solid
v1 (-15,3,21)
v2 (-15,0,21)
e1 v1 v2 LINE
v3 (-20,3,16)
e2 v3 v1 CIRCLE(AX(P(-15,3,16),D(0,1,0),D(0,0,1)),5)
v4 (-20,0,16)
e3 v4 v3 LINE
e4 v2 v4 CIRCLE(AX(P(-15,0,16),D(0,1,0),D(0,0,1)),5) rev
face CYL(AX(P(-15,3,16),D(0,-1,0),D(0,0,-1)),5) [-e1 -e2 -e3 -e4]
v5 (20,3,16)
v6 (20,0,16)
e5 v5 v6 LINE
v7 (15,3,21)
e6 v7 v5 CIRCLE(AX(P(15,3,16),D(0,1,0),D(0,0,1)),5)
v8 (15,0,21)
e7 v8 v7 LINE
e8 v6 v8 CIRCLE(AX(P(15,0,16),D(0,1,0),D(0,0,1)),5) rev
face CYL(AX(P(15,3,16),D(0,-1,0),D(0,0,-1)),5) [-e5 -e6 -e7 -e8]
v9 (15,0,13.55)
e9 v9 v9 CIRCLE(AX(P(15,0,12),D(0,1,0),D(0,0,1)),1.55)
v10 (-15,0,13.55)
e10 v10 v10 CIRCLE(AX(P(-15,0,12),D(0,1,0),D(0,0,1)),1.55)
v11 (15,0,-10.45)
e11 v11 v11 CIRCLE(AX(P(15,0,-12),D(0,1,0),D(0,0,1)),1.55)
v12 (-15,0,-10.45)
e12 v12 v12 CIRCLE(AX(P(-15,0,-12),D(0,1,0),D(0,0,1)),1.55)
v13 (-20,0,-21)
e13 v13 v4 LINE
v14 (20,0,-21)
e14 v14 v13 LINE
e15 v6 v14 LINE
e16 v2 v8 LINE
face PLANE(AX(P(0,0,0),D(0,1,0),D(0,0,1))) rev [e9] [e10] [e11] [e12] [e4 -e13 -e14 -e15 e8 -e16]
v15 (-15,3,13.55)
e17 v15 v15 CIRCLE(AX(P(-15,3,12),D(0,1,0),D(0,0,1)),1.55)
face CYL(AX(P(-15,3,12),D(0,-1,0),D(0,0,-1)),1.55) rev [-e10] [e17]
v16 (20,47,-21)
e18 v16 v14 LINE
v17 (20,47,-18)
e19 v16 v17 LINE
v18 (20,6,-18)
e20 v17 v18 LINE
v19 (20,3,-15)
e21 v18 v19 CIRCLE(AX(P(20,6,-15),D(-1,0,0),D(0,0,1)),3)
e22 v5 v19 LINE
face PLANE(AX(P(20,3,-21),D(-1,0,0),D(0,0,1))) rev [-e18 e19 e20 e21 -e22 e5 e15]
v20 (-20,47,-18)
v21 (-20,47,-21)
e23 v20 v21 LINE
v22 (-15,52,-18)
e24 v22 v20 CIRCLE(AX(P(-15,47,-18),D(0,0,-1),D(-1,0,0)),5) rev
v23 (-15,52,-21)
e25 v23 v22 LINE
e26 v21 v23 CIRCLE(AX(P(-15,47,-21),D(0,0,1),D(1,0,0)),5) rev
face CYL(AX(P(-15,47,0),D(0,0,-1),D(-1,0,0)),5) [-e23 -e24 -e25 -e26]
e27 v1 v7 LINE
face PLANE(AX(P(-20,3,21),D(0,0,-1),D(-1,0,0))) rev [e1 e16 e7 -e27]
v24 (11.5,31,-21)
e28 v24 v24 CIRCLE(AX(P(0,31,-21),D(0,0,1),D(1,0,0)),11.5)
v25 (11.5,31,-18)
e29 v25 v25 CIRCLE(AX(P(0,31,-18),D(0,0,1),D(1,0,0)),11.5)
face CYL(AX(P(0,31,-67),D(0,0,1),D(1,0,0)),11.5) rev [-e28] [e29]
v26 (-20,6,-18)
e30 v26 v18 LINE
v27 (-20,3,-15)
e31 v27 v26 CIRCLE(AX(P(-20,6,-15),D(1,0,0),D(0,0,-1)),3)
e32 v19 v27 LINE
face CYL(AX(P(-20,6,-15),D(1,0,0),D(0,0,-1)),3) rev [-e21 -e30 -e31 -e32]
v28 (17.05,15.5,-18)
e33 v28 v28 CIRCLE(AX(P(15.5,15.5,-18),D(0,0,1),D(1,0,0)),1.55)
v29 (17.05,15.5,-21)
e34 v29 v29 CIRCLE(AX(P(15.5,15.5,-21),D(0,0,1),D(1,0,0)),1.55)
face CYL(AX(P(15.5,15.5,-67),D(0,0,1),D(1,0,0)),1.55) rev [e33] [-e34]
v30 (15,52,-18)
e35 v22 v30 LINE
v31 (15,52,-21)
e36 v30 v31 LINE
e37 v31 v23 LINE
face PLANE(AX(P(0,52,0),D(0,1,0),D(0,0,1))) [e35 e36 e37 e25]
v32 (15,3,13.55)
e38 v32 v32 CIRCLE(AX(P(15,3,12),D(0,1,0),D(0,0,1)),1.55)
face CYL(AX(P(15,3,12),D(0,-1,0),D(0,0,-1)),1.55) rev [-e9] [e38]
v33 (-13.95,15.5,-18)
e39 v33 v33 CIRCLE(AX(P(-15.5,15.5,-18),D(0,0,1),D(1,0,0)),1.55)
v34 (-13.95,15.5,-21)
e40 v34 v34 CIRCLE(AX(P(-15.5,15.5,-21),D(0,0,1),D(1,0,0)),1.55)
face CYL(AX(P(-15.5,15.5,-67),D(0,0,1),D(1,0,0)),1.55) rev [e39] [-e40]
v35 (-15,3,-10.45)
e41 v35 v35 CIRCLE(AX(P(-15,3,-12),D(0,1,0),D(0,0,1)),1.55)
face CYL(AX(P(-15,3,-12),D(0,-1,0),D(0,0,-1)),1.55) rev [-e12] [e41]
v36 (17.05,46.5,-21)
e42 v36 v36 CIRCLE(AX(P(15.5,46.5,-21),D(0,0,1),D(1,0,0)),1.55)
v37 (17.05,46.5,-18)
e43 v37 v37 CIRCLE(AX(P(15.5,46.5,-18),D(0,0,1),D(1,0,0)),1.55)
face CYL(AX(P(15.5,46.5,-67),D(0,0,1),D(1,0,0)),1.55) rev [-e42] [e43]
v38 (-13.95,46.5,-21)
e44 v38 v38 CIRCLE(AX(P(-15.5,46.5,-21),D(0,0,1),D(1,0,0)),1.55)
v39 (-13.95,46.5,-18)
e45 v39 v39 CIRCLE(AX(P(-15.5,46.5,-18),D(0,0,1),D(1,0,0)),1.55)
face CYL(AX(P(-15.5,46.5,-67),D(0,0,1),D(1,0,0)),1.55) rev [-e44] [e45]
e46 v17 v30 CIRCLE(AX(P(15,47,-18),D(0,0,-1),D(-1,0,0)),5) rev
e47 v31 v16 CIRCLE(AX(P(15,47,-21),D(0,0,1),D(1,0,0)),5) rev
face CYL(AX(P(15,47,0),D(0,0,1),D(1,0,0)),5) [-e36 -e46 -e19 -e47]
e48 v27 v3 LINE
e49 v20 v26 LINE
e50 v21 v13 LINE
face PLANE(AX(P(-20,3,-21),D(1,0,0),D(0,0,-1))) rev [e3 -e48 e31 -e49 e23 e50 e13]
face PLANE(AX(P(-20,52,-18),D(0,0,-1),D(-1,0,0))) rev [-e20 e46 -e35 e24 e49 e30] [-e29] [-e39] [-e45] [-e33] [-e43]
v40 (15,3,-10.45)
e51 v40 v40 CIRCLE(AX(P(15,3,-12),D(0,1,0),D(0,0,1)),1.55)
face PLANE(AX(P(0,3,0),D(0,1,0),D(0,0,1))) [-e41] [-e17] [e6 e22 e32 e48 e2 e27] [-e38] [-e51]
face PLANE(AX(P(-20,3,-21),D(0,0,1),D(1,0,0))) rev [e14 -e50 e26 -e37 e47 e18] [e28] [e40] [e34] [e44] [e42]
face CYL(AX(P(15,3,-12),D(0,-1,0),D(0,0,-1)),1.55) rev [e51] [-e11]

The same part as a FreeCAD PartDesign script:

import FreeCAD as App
import Part
import Sketcher

V = App.Vector


def edges_at(feature, points):
    """Names of the edges that pass closest to the given points."""
    edges = feature.Shape.Edges
    near = lambda p: min(range(len(edges)), key=lambda i: edges[i].distToShape(Part.Vertex(*p))[0])
    return sorted({f"Edge{near(p) + 1}" for p in points})

doc = App.newDocument("Part")
body = doc.addObject("PartDesign::Body", "Body")

# Sketch on XZ plane
sketch1 = body.newObject("Sketcher::SketchObject", "Sketch")
sketch1.AttachmentSupport = (doc.getObject("XZ_Plane"), [""])
sketch1.MapMode = "FlatFace"
sketch1.addGeometry([
    Part.LineSegment(V(-20, -21, 0), V(-20, 21, 0)),  # 0
    Part.LineSegment(V(-20, 21, 0), V(20, 21, 0)),  # 1
    Part.LineSegment(V(20, 21, 0), V(20, -21, 0)),  # 2
    Part.LineSegment(V(20, -21, 0), V(-20, -21, 0)),  # 3
    Part.Circle(V(-15, 12, 0), V(0, 0, 1), 1.55),  # 4
    Part.Circle(V(15, 12, 0), V(0, 0, 1), 1.55),  # 5
    Part.Circle(V(-15, -12, 0), V(0, 0, 1), 1.55),  # 6
    Part.Circle(V(15, -12, 0), V(0, 0, 1), 1.55),  # 7
], False)
sketch1.addConstraint([
    Sketcher.Constraint("Coincident", 0, 2, 1, 1),
    Sketcher.Constraint("Coincident", 1, 2, 2, 1),
    Sketcher.Constraint("Coincident", 2, 2, 3, 1),
    Sketcher.Constraint("Coincident", 3, 2, 0, 1),
    Sketcher.Constraint("Vertical", 0),
    Sketcher.Constraint("Horizontal", 1),
    Sketcher.Constraint("Vertical", 2),
    Sketcher.Constraint("Horizontal", 3),
    Sketcher.Constraint("Equal", 4, 5),
    Sketcher.Constraint("Equal", 5, 6),
    Sketcher.Constraint("Equal", 6, 7),
    Sketcher.Constraint("Symmetric", 5, 3, 6, 3, -1, 1),
    Sketcher.Constraint("Symmetric", 4, 3, 7, 3, -1, 1),
    Sketcher.Constraint("Symmetric", 0, 2, 2, 2, -1, 1),
    Sketcher.Constraint("Symmetric", 4, 3, 5, 3, -2),
    Sketcher.Constraint("Diameter", 4, 3.1),
    Sketcher.Constraint("DistanceX", 1, 1, 1, 2, 40.0),
    Sketcher.Constraint("DistanceY", 0, 1, 0, 2, 42.0),
    Sketcher.Constraint("DistanceX", 4, 3, -1, 1, 15.0),
    Sketcher.Constraint("DistanceY", -1, 1, 4, 3, 12.0),
])
pad1 = body.newObject("PartDesign::Pad", "Pad")
pad1.Profile = sketch1
pad1.Length = 3
pad1.Reversed = True

# Sketch on XZ plane
sketch2 = body.newObject("Sketcher::SketchObject", "Sketch001")
sketch2.AttachmentSupport = (doc.getObject("XZ_Plane"), [""])
sketch2.MapMode = "FlatFace"
sketch2.AttachmentOffset = App.Placement(V(0, 0, -3), App.Rotation())
sketch2.addGeometry([
    Part.LineSegment(V(-20, -21, 0), V(-20, -18, 0)),
    Part.LineSegment(V(-20, -18, 0), V(20, -18, 0)),
    Part.LineSegment(V(20, -18, 0), V(20, -21, 0)),
    Part.LineSegment(V(20, -21, 0), V(-20, -21, 0)),
], False)
sketch2.addConstraint([
    Sketcher.Constraint("Coincident", 0, 2, 1, 1),
    Sketcher.Constraint("Coincident", 1, 2, 2, 1),
    Sketcher.Constraint("Coincident", 2, 2, 3, 1),
    Sketcher.Constraint("Coincident", 3, 2, 0, 1),
    Sketcher.Constraint("Vertical", 0),
    Sketcher.Constraint("Horizontal", 1),
    Sketcher.Constraint("Vertical", 2),
    Sketcher.Constraint("Horizontal", 3),
    Sketcher.Constraint("DistanceX", 1, 1, 1, 2, 40.0),
    Sketcher.Constraint("DistanceY", 0, 1, 0, 2, 3.0),
    Sketcher.Constraint("DistanceX", 0, 2, -1, 1, 20.0),
    Sketcher.Constraint("DistanceY", 0, 2, -1, 1, 18.0),
])
pad2 = body.newObject("PartDesign::Pad", "Pad001")
pad2.Profile = sketch2
pad2.Length = 49
pad2.Reversed = True

# Sketch on XY plane
sketch3 = body.newObject("Sketcher::SketchObject", "Sketch002")
sketch3.AttachmentSupport = (doc.getObject("XY_Plane"), [""])
sketch3.MapMode = "FlatFace"
sketch3.AttachmentOffset = App.Placement(V(0, 0, -18), App.Rotation())
sketch3.addGeometry([
    Part.Circle(V(0, 31, 0), V(0, 0, 1), 11.5),  # 0
    Part.Circle(V(-15.5, 46.5, 0), V(0, 0, 1), 1.55),  # 1
    Part.Circle(V(15.5, 46.5, 0), V(0, 0, 1), 1.55),  # 2
    Part.Circle(V(15.5, 15.5, 0), V(0, 0, 1), 1.55),  # 3
    Part.Circle(V(-15.5, 15.5, 0), V(0, 0, 1), 1.55),  # 4
], False)
sketch3.addConstraint([
    Sketcher.Constraint("Equal", 1, 2),
    Sketcher.Constraint("Equal", 2, 3),
    Sketcher.Constraint("Equal", 3, 4),
    Sketcher.Constraint("Symmetric", 1, 3, 2, 3, -2),
    Sketcher.Constraint("Symmetric", 3, 3, 4, 3, -2),
    Sketcher.Constraint("PointOnObject", 0, 3, -2),
    Sketcher.Constraint("Vertical", 2, 3, 3, 3),
    Sketcher.Constraint("Diameter", 0, 23.0),
    Sketcher.Constraint("Diameter", 1, 3.1),
    Sketcher.Constraint("DistanceY", -1, 1, 0, 3, 31.0),
    Sketcher.Constraint("DistanceX", 1, 3, 2, 3, 31.0),
    Sketcher.Constraint("DistanceY", 3, 3, 2, 3, 31.0),
    Sketcher.Constraint("DistanceY", -1, 1, 1, 3, 46.5),
])
pocket1 = body.newObject("PartDesign::Pocket", "Pocket")
pocket1.Profile = sketch3
pocket1.Length = 49
doc.recompute()

fillet = body.newObject("PartDesign::Fillet", "Fillet")
fillet.Base = (pocket1, edges_at(pocket1, [
    (-20, 52, -19.5),
    (20, 52, -19.5),
    (20, 1.5, 21),
    (-20, 1.5, 21),
]))
fillet.Radius = 5
doc.recompute()

fillet2 = body.newObject("PartDesign::Fillet", "Fillet001")
fillet2.Base = (fillet, edges_at(fillet, [(0, 3, -18)]))
fillet2.Radius = 3

doc.recompute()
